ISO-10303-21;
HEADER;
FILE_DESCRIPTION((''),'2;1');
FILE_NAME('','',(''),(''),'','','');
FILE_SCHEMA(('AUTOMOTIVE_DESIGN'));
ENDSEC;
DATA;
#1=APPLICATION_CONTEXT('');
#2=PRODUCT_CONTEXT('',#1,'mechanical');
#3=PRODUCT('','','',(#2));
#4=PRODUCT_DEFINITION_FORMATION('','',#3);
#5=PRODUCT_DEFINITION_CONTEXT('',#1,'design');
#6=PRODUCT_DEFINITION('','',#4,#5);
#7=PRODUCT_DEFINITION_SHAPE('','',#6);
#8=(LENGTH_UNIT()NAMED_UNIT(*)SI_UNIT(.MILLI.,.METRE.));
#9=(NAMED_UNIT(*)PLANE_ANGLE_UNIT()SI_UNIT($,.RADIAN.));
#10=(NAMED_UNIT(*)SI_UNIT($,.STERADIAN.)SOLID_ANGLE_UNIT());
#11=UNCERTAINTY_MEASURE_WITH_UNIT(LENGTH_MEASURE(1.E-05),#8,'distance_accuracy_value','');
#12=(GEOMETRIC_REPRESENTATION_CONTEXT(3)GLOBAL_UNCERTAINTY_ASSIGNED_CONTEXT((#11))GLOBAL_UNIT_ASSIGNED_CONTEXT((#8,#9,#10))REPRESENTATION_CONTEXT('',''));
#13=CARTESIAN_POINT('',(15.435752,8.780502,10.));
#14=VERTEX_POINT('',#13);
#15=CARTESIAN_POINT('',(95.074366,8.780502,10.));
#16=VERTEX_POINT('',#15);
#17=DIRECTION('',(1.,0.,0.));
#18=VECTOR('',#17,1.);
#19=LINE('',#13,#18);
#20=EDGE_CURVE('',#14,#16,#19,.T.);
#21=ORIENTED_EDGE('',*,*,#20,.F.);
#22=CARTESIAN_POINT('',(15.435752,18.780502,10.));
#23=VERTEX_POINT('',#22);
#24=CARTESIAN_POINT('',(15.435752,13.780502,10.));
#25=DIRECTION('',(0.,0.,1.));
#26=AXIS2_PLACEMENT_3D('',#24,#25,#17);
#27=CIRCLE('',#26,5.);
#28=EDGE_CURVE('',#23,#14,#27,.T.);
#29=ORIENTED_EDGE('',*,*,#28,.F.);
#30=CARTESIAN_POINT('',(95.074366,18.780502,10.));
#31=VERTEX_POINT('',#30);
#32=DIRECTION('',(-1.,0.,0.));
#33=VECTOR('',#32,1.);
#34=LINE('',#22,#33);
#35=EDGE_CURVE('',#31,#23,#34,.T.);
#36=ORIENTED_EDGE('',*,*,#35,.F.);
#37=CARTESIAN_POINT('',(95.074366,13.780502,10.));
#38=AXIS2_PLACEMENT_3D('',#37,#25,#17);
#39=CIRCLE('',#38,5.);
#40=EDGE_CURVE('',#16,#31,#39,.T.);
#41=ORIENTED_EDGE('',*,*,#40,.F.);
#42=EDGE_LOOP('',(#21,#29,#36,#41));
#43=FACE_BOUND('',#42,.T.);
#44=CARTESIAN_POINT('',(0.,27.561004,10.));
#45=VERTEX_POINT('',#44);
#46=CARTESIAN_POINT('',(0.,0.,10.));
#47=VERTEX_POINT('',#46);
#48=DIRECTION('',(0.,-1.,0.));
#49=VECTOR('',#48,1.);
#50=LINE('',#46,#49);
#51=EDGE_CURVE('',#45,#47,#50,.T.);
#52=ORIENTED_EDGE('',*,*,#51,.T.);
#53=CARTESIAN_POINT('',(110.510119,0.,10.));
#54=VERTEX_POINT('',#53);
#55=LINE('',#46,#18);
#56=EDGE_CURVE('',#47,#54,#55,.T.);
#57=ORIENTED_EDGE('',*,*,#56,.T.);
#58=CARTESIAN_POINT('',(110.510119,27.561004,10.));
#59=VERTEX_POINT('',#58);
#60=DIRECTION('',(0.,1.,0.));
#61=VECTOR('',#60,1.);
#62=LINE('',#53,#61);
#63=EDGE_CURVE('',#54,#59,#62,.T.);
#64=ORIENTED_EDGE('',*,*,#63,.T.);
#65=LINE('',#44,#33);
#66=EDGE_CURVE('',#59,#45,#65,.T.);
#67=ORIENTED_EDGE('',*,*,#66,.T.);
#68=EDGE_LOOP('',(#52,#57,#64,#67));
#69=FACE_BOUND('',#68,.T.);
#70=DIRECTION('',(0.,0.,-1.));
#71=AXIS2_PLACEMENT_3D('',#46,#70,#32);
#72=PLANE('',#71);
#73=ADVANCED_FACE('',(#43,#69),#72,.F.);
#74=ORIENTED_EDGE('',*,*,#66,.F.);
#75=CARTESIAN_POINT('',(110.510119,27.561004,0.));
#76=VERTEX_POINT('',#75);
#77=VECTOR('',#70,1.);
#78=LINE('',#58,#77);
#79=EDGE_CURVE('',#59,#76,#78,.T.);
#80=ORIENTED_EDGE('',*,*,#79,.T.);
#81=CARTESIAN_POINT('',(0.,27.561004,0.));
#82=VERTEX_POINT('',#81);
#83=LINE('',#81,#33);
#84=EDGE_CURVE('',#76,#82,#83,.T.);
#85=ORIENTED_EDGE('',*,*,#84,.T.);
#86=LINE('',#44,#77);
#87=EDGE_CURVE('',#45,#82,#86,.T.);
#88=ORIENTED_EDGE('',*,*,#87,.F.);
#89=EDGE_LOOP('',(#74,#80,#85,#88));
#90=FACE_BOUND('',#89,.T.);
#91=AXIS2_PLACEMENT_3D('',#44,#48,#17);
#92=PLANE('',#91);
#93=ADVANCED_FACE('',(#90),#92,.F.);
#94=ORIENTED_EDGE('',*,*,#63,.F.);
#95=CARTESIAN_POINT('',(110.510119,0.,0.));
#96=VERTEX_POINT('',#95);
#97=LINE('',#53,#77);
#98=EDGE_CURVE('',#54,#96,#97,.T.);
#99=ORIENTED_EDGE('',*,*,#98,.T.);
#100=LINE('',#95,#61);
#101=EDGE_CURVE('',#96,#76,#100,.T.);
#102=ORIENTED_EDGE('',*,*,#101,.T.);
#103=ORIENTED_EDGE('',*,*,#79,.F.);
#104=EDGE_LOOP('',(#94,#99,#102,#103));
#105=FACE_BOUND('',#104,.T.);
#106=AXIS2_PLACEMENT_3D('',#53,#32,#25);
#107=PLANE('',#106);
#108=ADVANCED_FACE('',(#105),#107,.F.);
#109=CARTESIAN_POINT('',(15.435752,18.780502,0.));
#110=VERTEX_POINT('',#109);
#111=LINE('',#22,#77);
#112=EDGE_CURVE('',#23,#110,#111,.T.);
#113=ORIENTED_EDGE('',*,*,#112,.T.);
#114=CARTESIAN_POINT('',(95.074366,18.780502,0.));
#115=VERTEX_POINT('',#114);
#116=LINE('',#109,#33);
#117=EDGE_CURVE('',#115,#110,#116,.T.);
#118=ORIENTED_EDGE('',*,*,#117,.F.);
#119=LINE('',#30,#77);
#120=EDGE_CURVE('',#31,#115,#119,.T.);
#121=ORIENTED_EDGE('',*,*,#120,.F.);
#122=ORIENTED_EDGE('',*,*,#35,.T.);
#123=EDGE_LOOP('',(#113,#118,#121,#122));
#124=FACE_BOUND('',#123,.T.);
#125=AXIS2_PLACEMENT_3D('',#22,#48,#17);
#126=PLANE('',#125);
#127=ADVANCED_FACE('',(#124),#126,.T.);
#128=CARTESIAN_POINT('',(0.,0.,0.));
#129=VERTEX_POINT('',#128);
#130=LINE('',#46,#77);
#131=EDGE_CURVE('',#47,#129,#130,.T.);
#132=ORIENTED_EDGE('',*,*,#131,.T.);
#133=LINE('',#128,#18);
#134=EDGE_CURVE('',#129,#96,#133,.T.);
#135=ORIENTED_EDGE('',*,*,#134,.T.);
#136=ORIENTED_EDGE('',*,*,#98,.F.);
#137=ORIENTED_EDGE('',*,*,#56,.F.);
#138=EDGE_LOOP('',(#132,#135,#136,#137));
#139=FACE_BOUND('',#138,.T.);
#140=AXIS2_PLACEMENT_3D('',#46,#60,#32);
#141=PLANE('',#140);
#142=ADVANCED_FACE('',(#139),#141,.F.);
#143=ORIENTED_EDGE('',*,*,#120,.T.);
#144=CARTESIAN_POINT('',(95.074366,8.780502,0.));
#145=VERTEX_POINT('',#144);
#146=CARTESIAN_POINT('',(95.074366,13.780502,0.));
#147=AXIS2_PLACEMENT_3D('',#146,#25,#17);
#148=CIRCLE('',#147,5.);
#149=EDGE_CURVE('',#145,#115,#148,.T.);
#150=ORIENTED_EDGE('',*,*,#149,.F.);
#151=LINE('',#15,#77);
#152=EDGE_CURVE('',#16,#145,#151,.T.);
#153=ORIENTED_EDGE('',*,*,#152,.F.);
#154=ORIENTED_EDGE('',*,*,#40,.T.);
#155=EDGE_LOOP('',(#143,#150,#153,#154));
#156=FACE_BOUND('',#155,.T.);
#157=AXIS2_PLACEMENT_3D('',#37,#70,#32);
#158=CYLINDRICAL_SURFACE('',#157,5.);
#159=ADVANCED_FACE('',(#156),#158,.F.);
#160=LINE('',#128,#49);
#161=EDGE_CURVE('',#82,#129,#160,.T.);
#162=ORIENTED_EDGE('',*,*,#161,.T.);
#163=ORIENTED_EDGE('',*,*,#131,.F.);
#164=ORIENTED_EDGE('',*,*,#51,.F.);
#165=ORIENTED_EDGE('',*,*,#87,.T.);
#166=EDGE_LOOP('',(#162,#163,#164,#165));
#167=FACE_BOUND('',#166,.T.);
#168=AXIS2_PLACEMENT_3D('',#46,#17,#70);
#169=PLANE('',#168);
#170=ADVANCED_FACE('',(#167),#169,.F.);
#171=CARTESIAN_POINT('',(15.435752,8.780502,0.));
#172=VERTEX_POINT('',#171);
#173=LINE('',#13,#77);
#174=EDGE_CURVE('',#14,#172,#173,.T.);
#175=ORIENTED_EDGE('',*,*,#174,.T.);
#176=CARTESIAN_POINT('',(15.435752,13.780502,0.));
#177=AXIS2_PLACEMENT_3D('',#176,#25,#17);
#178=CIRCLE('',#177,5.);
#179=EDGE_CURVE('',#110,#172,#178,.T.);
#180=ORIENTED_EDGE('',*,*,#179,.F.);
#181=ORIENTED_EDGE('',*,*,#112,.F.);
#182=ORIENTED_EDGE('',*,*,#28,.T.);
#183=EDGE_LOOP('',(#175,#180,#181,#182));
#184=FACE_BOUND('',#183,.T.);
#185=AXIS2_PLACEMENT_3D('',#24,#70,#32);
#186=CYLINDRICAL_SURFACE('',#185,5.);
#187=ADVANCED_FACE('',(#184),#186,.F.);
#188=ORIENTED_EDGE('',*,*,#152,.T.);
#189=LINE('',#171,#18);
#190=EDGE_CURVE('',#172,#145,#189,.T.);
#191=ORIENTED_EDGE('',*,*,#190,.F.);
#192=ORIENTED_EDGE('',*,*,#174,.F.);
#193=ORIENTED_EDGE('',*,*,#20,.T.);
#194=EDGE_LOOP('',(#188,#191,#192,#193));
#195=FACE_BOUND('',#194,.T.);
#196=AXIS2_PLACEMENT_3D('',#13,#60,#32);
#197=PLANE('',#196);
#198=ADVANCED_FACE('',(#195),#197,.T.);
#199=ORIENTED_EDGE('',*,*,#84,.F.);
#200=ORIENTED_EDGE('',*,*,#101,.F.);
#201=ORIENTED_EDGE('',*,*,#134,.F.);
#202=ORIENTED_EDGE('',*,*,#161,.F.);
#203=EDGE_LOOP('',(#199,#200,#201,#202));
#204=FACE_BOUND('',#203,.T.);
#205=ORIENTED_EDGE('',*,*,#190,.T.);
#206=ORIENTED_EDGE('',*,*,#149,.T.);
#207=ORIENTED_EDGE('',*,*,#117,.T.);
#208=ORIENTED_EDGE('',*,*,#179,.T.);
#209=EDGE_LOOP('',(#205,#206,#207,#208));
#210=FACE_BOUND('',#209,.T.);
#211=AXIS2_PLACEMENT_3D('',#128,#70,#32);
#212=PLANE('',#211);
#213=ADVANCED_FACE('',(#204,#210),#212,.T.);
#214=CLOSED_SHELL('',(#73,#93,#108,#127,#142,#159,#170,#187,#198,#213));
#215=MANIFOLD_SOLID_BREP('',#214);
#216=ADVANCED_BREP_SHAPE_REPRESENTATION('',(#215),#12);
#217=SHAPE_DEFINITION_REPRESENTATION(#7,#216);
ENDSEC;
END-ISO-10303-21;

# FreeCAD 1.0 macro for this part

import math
import FreeCAD as App
import Part
import Sketcher


def add_polygon(sketch, points):
    """Adds a closed chain of lines whose ends are joined by coincident constraints."""
    first, n = sketch.GeometryCount, len(points)
    for a, b in zip(points, points[1:] + points[:1]):
        sketch.addGeometry(Part.LineSegment(App.Vector(*a, 0), App.Vector(*b, 0)), False)
    for i in range(n):
        sketch.addConstraint(Sketcher.Constraint("Coincident", first + i, 2, first + (i + 1) % n, 1))

doc = App.newDocument("Part")
body = doc.addObject("PartDesign::Body", "Body")

sketch1 = body.newObject("Sketcher::SketchObject", "Sketch")
sketch1.AttachmentSupport = (doc.getObject("XY_Plane"), [""])
sketch1.MapMode = "FlatFace"
add_polygon(sketch1, [(0, 27.561004), (0, 0), (110.510119, 0), (110.510119, 27.561004)])
sketch1.addGeometry(Part.ArcOfCircle(Part.Circle(App.Vector(15.435752, 13.780502, 0), App.Vector(0, 0, 1), 5), math.radians(90), math.radians(270)), False)
sketch1.addGeometry(Part.LineSegment(App.Vector(15.435752, 18.780502, 0), App.Vector(95.074366, 18.780502, 0)), False)
sketch1.addGeometry(Part.ArcOfCircle(Part.Circle(App.Vector(95.074366, 13.780502, 0), App.Vector(0, 0, 1), 5), math.radians(-90), math.radians(90)), False)
sketch1.addGeometry(Part.LineSegment(App.Vector(95.074366, 8.780502, 0), App.Vector(15.435752, 8.780502, 0)), False)
sketch1.addConstraint([
    Sketcher.Constraint("Tangent", 4, 1, 5, 1),
    Sketcher.Constraint("Tangent", 5, 2, 6, 2),
    Sketcher.Constraint("Tangent", 6, 1, 7, 1),
    Sketcher.Constraint("Tangent", 7, 2, 4, 2),
    Sketcher.Constraint("Vertical", 0),
    Sketcher.Constraint("Horizontal", 1),
    Sketcher.Constraint("Vertical", 2),
    Sketcher.Constraint("Horizontal", 3),
    Sketcher.Constraint("Horizontal", 5),
    Sketcher.Constraint("Horizontal", 7),
    Sketcher.Constraint("Coincident", 0, 2, -1, 1),
    Sketcher.Constraint("Radius", 4, 5.0),
    Sketcher.Constraint("DistanceX", 1, 1, 1, 2, 110.510119),
    Sketcher.Constraint("DistanceY", -1, 1, 4, 3, 13.780502),
    Sketcher.Constraint("DistanceY", 6, 3, 2, 2, 13.780502),
    Sketcher.Constraint("DistanceX", 5, 1, 5, 2, 79.638614),
    Sketcher.Constraint("DistanceX", -1, 1, 4, 3, 15.435752),
])
pad1 = body.newObject("PartDesign::Pad", "Pad")
pad1.Profile = sketch1
pad1.Length = 10

doc.recompute()
